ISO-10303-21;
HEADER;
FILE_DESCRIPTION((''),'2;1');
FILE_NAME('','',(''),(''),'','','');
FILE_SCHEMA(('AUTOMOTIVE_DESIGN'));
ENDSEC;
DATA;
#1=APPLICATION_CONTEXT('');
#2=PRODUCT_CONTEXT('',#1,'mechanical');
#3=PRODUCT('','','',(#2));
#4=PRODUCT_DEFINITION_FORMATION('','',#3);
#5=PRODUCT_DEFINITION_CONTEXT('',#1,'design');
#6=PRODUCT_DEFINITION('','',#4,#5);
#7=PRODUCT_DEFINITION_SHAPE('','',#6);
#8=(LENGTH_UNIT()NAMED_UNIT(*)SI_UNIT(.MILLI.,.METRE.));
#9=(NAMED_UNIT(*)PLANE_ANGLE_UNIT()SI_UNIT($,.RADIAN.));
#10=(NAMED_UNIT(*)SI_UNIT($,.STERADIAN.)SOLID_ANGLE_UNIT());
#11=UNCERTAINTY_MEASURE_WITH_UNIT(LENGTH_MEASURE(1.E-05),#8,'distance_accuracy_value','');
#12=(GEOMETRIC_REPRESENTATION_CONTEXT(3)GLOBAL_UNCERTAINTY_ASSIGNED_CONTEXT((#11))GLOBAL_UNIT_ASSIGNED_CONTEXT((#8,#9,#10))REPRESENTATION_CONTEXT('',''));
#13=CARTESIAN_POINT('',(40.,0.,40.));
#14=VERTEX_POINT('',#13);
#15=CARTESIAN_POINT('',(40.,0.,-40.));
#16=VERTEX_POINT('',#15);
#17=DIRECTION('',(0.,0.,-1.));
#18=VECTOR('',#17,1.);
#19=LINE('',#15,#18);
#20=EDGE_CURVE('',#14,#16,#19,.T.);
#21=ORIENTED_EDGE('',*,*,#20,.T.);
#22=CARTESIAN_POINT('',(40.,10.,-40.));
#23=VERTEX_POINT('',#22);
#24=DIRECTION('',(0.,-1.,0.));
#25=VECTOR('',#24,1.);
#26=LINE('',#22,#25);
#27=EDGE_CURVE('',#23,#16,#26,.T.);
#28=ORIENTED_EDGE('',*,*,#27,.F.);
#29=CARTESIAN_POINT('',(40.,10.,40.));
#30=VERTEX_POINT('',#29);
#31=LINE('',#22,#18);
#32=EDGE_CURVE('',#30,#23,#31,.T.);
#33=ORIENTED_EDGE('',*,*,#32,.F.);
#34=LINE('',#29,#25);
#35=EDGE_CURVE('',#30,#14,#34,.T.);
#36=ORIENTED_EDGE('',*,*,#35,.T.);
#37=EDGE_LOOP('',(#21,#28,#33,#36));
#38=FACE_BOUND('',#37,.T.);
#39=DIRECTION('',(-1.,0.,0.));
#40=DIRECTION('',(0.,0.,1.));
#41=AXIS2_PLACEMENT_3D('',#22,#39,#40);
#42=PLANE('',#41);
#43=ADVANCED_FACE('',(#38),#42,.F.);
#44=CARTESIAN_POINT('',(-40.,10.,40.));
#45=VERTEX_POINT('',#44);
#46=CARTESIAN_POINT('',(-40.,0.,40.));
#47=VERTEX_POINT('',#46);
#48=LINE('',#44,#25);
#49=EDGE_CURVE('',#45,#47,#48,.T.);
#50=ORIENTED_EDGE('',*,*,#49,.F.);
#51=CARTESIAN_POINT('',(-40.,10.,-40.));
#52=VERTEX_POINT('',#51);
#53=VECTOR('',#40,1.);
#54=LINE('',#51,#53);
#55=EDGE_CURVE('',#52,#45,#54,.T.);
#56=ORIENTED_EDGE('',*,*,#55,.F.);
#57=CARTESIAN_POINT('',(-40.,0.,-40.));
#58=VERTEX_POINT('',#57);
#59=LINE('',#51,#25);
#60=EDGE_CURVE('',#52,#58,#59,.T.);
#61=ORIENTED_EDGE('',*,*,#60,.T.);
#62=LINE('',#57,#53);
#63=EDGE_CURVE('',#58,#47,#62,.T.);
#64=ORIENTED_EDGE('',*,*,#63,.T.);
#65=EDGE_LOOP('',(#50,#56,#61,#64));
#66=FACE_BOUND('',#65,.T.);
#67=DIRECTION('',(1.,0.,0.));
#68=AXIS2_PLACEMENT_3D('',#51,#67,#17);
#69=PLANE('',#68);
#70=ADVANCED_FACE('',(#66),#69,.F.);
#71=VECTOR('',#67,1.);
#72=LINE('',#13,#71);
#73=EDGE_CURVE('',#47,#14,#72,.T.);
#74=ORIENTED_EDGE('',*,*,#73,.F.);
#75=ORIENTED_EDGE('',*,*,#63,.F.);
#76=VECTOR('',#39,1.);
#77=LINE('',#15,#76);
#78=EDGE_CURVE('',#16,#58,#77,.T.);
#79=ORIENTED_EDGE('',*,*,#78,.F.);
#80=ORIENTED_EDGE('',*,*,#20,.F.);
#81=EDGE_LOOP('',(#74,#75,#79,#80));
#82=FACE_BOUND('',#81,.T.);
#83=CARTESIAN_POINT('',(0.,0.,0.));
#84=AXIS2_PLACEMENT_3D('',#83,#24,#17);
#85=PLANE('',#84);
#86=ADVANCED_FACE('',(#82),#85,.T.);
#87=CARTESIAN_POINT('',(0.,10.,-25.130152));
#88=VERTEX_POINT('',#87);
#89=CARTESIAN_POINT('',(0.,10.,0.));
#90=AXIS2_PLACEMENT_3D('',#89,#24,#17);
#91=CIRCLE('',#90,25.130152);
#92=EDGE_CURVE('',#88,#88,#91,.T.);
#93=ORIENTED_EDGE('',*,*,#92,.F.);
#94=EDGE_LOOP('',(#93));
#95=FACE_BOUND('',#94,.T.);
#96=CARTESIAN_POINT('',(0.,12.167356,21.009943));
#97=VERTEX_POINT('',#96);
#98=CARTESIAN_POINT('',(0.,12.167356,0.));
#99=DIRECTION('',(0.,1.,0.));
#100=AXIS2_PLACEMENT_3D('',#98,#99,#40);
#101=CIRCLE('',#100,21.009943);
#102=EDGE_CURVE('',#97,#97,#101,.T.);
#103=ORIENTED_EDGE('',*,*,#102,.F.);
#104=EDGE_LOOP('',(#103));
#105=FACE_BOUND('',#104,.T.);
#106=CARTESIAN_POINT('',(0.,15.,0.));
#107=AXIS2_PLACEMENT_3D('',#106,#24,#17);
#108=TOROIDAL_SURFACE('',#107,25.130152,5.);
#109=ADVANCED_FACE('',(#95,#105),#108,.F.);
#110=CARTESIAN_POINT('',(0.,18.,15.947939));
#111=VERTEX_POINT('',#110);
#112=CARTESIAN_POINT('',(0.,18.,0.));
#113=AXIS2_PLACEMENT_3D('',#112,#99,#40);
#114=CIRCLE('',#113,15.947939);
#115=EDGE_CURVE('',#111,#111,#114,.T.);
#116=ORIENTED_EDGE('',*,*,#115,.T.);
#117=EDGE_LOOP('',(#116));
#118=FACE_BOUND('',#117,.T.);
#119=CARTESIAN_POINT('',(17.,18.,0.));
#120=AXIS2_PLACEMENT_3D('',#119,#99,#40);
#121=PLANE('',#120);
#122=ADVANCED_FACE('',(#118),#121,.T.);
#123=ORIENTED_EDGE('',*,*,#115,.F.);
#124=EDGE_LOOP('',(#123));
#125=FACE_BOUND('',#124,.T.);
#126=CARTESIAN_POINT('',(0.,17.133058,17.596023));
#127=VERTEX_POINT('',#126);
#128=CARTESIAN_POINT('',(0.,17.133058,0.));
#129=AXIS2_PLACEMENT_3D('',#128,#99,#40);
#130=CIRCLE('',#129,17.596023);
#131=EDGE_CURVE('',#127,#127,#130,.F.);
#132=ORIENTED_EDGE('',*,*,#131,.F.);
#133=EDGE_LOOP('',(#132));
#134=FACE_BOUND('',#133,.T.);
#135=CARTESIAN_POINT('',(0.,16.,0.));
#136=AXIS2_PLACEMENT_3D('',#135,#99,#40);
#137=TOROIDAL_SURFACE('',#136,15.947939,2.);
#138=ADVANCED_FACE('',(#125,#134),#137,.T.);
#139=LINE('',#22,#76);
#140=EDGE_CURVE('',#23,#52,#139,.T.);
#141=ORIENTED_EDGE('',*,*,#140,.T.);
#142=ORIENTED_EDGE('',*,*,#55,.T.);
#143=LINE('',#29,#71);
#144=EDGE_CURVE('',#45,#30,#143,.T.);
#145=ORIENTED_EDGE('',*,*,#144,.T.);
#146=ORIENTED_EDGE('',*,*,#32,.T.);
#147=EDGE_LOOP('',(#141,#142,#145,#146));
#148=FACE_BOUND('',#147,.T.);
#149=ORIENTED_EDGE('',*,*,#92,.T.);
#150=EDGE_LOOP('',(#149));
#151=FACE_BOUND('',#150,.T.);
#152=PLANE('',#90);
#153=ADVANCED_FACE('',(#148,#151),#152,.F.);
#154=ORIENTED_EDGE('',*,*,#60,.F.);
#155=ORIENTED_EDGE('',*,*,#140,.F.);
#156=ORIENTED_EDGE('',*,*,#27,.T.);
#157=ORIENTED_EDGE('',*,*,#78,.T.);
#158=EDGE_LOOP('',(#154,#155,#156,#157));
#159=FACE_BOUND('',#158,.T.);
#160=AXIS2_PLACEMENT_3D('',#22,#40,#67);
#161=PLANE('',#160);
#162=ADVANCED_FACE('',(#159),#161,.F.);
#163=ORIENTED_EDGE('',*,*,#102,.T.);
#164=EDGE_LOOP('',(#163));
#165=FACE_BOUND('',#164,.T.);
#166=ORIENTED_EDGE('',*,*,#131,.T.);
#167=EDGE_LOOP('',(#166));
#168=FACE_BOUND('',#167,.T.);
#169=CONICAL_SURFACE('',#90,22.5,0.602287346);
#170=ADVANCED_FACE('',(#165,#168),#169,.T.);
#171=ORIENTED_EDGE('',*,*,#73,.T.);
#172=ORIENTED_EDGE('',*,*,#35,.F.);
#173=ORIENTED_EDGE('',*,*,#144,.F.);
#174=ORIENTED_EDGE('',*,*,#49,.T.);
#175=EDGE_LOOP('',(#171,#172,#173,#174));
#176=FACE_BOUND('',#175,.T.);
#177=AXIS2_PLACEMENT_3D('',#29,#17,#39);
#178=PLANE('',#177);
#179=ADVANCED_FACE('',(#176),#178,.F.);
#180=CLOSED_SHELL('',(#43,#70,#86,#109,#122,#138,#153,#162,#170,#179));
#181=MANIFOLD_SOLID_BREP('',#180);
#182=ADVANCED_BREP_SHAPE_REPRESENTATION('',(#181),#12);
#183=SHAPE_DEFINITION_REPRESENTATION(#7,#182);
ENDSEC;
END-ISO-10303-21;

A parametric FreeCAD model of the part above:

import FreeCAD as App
import Part
import Sketcher
Q = App.Units.Quantity


def edges_at(feature, points):
    """Names of the edges that pass closest to the given points."""
    edges = feature.Shape.Edges
    near = lambda p: min(range(len(edges)), key=lambda i: edges[i].distToShape(Part.Vertex(*p))[0])
    return sorted({f"Edge{near(p) + 1}" for p in points})

doc = App.newDocument("Part")
body = doc.addObject("PartDesign::Body", "Body")

# Sketch on XZ plane
sketch1 = body.newObject("Sketcher::SketchObject", "Sketch")
sketch1.AttachmentSupport = (doc.getObject("XZ_Plane"), [""])
sketch1.MapMode = "FlatFace"
sketch1.addGeometry([
    Part.LineSegment(App.Vector(-40, -40, 0), App.Vector(-40, 40, 0)),
    Part.LineSegment(App.Vector(-40, 40, 0), App.Vector(40, 40, 0)),
    Part.LineSegment(App.Vector(40, 40, 0), App.Vector(40, -40, 0)),
    Part.LineSegment(App.Vector(40, -40, 0), App.Vector(-40, -40, 0)),
], False)
sketch1.addConstraint([
    Sketcher.Constraint("Coincident", 0, 2, 1, 1),
    Sketcher.Constraint("Coincident", 1, 2, 2, 1),
    Sketcher.Constraint("Coincident", 2, 2, 3, 1),
    Sketcher.Constraint("Coincident", 3, 2, 0, 1),
    Sketcher.Constraint("Vertical", 0),
    Sketcher.Constraint("Horizontal", 1),
    Sketcher.Constraint("Vertical", 2),
    Sketcher.Constraint("Horizontal", 3),
    Sketcher.Constraint("Symmetric", 0, 2, 2, 2, -1, 1),
    Sketcher.Constraint("Equal", 3, 0),
    Sketcher.Constraint("DistanceX", 1, 1, 1, 2, Q("80 mm")),
])
pad1 = body.newObject("PartDesign::Pad", "Pad")
pad1.Profile = sketch1
pad1.Length = 10
pad1.Reversed = True

# Sketch on XY plane
sketch2 = body.newObject("Sketcher::SketchObject", "Sketch001")
sketch2.AttachmentSupport = (doc.getObject("XY_Plane"), [""])
sketch2.MapMode = "FlatFace"
sketch2.addGeometry([
    Part.LineSegment(App.Vector(0, 18, 0), App.Vector(0, 10, 0)),
    Part.LineSegment(App.Vector(0, 10, 0), App.Vector(22, 10, 0)),
    Part.LineSegment(App.Vector(22, 10, 0), App.Vector(17, 18, 0)),
    Part.LineSegment(App.Vector(17, 18, 0), App.Vector(0, 18, 0)),
], False)
sketch2.addConstraint([
    Sketcher.Constraint("Coincident", 0, 2, 1, 1),
    Sketcher.Constraint("Coincident", 1, 2, 2, 1),
    Sketcher.Constraint("Coincident", 2, 2, 3, 1),
    Sketcher.Constraint("Coincident", 3, 2, 0, 1),
    Sketcher.Constraint("Vertical", 0),
    Sketcher.Constraint("Horizontal", 1),
    Sketcher.Constraint("Horizontal", 3),
    Sketcher.Constraint("PointOnObject", 0, 2, -2),
    Sketcher.Constraint("DistanceX", 3, 2, 3, 1, Q("17 mm")),
    Sketcher.Constraint("DistanceY", 0, 2, 0, 1, Q("8 mm")),
    Sketcher.Constraint("DistanceX", 1, 1, 1, 2, Q("22.5 mm")),
    Sketcher.Constraint("DistanceY", -1, 1, 0, 2, Q("10 mm")),
])
revolution = body.newObject("PartDesign::Revolution", "Revolution")
revolution.Profile = sketch2
revolution.ReferenceAxis = (sketch2, ["V_Axis"])
revolution.Angle = 360
doc.recompute()

fillet = body.newObject("PartDesign::Fillet", "Fillet")
fillet.Base = (revolution, edges_at(revolution, [(-22.5, 10, 0)]))
fillet.Radius = 5
doc.recompute()

fillet2 = body.newObject("PartDesign::Fillet", "Fillet001")
fillet2.Base = (fillet, edges_at(fillet, [(-17, 18, 0)]))
fillet2.Radius = 2

doc.recompute()
